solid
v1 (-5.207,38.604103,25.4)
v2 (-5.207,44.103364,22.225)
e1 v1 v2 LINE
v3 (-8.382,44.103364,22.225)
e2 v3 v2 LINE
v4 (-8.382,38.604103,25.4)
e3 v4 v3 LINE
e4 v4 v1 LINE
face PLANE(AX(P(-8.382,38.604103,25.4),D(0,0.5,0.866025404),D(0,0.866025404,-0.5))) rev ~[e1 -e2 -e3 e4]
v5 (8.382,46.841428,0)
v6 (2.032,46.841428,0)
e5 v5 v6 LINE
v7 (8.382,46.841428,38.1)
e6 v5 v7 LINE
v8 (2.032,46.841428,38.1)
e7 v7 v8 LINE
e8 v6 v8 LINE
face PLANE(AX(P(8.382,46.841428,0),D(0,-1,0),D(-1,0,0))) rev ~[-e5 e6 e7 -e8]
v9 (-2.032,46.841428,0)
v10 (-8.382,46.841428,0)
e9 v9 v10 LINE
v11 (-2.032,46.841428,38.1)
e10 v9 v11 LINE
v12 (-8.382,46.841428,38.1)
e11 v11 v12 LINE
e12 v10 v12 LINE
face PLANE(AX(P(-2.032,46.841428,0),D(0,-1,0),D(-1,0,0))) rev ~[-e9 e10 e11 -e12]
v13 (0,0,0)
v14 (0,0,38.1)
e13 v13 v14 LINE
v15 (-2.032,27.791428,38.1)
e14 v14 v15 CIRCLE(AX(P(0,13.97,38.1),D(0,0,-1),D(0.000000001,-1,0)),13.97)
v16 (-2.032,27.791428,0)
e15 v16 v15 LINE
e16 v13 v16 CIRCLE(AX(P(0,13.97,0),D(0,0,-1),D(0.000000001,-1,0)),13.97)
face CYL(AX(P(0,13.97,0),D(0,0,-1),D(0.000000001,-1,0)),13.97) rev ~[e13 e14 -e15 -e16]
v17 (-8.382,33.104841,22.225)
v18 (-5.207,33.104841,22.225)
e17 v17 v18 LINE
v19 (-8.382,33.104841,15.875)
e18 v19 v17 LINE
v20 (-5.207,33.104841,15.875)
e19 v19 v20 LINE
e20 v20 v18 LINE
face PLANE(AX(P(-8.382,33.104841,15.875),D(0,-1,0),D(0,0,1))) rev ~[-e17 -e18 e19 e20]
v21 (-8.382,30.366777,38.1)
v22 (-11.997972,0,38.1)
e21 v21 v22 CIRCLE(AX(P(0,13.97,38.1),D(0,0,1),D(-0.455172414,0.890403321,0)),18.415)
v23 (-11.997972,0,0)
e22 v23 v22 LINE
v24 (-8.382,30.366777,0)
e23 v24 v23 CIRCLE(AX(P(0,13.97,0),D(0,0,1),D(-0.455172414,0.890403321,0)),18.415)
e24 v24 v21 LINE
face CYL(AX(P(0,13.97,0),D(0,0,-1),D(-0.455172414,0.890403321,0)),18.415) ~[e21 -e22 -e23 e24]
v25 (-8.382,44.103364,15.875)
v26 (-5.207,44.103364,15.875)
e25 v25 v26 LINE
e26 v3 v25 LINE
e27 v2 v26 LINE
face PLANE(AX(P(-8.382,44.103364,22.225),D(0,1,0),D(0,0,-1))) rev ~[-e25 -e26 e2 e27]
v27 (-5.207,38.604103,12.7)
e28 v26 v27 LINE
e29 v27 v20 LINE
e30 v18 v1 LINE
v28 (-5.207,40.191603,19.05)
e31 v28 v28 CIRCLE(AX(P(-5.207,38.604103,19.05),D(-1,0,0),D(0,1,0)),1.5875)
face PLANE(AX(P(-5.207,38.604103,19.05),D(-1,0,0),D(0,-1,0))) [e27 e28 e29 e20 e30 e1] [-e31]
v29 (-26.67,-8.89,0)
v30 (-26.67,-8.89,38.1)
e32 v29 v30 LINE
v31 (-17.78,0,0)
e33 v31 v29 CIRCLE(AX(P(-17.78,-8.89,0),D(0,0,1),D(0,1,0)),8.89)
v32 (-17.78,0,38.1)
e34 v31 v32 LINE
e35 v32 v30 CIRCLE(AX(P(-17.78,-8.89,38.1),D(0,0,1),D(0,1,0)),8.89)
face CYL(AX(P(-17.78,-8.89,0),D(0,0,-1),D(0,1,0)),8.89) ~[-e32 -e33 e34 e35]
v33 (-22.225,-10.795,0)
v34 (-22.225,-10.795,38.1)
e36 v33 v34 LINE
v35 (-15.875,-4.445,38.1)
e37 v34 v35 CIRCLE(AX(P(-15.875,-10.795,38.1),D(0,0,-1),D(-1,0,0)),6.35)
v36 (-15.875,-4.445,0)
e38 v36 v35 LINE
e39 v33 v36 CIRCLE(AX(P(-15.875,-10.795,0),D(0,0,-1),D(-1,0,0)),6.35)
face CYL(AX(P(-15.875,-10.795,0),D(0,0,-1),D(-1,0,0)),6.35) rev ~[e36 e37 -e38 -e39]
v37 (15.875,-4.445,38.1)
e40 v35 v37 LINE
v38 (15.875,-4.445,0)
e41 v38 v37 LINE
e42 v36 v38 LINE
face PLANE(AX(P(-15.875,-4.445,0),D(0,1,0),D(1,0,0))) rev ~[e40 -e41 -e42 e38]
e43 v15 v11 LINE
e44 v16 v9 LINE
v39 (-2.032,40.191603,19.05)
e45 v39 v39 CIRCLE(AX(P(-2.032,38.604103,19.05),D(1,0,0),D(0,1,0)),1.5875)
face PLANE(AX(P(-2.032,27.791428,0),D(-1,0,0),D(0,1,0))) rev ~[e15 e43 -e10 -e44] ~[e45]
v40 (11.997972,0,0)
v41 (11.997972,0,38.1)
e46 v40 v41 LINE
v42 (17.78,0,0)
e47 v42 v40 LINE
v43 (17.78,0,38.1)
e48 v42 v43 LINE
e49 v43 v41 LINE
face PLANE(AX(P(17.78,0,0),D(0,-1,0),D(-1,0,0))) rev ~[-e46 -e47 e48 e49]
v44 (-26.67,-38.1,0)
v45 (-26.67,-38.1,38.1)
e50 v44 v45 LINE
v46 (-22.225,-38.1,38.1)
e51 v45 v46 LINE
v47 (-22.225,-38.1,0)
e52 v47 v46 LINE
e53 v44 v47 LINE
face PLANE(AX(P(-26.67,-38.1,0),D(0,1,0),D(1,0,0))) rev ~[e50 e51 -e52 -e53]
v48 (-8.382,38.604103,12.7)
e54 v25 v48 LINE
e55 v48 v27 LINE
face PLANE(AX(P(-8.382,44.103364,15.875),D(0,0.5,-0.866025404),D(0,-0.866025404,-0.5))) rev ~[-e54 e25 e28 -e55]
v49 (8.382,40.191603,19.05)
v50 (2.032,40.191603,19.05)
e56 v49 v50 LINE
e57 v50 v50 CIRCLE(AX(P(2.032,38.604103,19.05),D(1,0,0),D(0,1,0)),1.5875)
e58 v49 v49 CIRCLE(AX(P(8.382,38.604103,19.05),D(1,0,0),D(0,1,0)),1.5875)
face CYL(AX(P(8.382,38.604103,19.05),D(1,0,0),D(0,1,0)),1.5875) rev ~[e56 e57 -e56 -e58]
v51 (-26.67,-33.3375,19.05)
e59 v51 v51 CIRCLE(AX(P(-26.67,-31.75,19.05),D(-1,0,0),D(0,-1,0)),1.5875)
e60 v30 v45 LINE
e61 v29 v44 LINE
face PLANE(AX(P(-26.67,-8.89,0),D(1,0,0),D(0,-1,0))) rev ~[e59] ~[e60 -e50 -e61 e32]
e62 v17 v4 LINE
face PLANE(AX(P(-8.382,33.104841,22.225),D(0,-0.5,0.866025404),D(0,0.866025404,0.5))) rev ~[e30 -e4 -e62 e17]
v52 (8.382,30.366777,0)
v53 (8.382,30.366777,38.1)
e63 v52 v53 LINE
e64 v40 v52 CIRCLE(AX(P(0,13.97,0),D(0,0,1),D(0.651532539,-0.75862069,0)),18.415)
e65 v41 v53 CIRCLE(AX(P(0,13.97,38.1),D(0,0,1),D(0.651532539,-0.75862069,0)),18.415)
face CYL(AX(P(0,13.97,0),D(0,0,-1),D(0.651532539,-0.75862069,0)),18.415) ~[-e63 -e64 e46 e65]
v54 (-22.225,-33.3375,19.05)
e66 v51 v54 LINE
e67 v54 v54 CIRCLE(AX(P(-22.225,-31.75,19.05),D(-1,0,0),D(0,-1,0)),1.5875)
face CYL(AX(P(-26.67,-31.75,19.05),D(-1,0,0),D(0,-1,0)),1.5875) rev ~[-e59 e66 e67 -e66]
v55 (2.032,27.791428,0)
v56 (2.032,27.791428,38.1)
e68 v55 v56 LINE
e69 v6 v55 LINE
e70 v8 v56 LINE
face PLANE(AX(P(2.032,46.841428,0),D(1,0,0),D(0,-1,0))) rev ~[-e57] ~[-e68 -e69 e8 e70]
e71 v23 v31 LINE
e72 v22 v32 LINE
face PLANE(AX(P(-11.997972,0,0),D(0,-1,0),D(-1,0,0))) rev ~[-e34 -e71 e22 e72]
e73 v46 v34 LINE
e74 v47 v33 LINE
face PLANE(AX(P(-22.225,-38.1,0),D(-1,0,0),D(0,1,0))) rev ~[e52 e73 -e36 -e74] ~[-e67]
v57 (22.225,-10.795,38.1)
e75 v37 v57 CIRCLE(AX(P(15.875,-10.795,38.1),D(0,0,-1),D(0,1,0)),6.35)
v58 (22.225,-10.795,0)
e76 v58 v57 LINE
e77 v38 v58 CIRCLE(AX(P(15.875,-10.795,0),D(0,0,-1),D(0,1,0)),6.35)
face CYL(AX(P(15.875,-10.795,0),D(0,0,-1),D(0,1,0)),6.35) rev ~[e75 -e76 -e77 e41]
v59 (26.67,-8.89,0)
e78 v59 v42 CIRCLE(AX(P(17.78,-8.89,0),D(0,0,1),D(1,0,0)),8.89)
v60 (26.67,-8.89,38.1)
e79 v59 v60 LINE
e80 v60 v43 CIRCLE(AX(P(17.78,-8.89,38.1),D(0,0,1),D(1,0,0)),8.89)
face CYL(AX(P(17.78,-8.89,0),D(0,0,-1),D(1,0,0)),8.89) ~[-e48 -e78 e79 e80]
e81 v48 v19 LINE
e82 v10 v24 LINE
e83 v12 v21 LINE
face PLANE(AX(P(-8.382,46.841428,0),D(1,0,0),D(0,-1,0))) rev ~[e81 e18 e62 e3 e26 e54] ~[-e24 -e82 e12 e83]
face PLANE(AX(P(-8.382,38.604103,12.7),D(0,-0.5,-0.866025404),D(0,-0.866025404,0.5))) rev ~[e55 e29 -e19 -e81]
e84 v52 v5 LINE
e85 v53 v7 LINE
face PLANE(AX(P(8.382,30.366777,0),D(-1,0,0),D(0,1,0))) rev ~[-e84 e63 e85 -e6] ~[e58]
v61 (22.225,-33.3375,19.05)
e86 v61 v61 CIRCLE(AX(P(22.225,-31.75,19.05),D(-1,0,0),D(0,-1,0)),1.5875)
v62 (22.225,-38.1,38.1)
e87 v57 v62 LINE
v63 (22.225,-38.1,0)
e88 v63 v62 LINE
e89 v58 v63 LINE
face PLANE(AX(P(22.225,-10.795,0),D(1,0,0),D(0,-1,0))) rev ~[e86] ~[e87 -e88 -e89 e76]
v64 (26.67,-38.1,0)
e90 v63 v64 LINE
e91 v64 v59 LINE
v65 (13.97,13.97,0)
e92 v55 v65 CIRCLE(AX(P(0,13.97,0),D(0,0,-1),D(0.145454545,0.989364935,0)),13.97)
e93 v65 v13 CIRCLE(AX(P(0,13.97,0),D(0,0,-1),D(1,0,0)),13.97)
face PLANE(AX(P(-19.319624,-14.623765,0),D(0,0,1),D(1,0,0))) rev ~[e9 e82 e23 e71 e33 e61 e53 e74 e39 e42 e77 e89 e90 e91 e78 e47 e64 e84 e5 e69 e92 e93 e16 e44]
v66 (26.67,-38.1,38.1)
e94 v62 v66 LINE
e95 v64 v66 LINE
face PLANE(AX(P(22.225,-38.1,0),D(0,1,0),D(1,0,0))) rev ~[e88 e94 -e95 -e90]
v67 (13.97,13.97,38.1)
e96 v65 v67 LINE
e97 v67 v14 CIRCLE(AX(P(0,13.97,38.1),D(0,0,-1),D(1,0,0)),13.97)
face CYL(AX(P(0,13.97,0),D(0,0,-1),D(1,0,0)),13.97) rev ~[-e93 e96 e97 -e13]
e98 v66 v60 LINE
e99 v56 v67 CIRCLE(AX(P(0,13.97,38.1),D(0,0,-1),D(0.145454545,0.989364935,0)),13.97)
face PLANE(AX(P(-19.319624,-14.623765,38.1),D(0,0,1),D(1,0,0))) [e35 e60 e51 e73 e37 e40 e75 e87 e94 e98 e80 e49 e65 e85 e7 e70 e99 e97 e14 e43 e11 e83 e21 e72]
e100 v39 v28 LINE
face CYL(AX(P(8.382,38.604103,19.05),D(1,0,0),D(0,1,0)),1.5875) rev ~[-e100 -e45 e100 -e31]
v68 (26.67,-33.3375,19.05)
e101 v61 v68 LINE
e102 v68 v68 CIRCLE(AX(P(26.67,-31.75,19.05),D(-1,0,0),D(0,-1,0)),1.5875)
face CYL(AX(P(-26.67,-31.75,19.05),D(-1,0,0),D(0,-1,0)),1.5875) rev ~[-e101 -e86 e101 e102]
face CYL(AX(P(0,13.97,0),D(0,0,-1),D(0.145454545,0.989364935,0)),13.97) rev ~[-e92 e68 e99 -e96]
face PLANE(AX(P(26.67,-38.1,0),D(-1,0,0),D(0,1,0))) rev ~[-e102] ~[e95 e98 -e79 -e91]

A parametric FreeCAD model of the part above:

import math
import FreeCAD as App
import Part
import Sketcher

V = App.Vector
Q = App.Units.Quantity


def add_polygon(sketch, points):
    """Adds a closed chain of lines whose ends are joined by coincident constraints."""
    first, n = sketch.GeometryCount, len(points)
    for a, b in zip(points, points[1:] + points[:1]):
        sketch.addGeometry(Part.LineSegment(App.Vector(*a, 0), App.Vector(*b, 0)), False)
    for i in range(n):
        sketch.addConstraint(Sketcher.Constraint("Coincident", first + i, 2, first + (i + 1) % n, 1))

doc = App.newDocument("Part")
body = doc.addObject("PartDesign::Body", "Body")

sketch1 = body.newObject("Sketcher::SketchObject", "Sketch")
sketch1.AttachmentSupport = (doc.getObject("XY_Plane"), [""])
sketch1.MapMode = "FlatFace"
sketch1.addGeometry(Part.ArcOfCircle(Part.Circle(V(-17.8, -8.9, 0), V(0, 0, 1), 8.9), math.radians(90), math.radians(180)), False)
sketch1.addGeometry(Part.LineSegment(V(-26.7, -8.9, 0), V(-26.7, -38.1, 0)), False)
sketch1.addGeometry(Part.LineSegment(V(-26.7, -38.1, 0), V(-22.2, -38.1, 0)), False)
sketch1.addGeometry(Part.LineSegment(V(-22.2, -38.1, 0), V(-22.2, -10.8, 0)), False)
sketch1.addGeometry(Part.ArcOfCircle(Part.Circle(V(-15.9, -10.8, 0), V(0, 0, 1), 6.3), math.radians(90), math.radians(180)), False)
sketch1.addGeometry(Part.LineSegment(V(-15.9, -4.4, 0), V(15.9, -4.4, 0)), False)
sketch1.addGeometry(Part.ArcOfCircle(Part.Circle(V(15.9, -10.8, 0), V(0, 0, 1), 6.3), math.radians(0), math.radians(90)), False)
sketch1.addGeometry(Part.LineSegment(V(22.2, -10.8, 0), V(22.2, -38.1, 0)), False)
sketch1.addGeometry(Part.LineSegment(V(22.2, -38.1, 0), V(26.7, -38.1, 0)), False)
sketch1.addGeometry(Part.LineSegment(V(26.7, -38.1, 0), V(26.7, -8.9, 0)), False)
sketch1.addGeometry(Part.ArcOfCircle(Part.Circle(V(17.8, -8.9, 0), V(0, 0, 1), 8.9), math.radians(0), math.radians(90)), False)
sketch1.addGeometry(Part.LineSegment(V(17.8, 0, 0), V(12, 0, 0)), False)
sketch1.addGeometry(Part.ArcOfCircle(Part.Circle(V(0, 14, 0), V(0, 0, 1), 18.4), math.radians(-49), math.radians(63)), False)
sketch1.addGeometry(Part.LineSegment(V(8.4, 30.4, 0), V(8.4, 46.8, 0)), False)
sketch1.addGeometry(Part.LineSegment(V(8.4, 46.8, 0), V(2, 46.8, 0)), False)
sketch1.addGeometry(Part.LineSegment(V(2, 46.8, 0), V(2, 27.8, 0)), False)
sketch1.addGeometry(Part.ArcOfCircle(Part.Circle(V(0, 14, 0), V(0, 0, 1), 14), math.radians(0), math.radians(82)), False)
sketch1.addGeometry(Part.ArcOfCircle(Part.Circle(V(0, 14, 0), V(0, 0, 1), 14), math.radians(-90), math.radians(0)), False)
sketch1.addGeometry(Part.ArcOfCircle(Part.Circle(V(0, 14, 0), V(0, 0, 1), 14), math.radians(98), math.radians(270)), False)
sketch1.addGeometry(Part.LineSegment(V(-2, 27.8, 0), V(-2, 46.8, 0)), False)
sketch1.addGeometry(Part.LineSegment(V(-2, 46.8, 0), V(-8.4, 46.8, 0)), False)
sketch1.addGeometry(Part.LineSegment(V(-8.4, 46.8, 0), V(-8.4, 30.4, 0)), False)
sketch1.addGeometry(Part.ArcOfCircle(Part.Circle(V(0, 14, 0), V(0, 0, 1), 18.4), math.radians(117), math.radians(229)), False)
sketch1.addGeometry(Part.LineSegment(V(-12, 0, 0), V(-17.8, 0, 0)), False)
sketch1.addConstraint(Sketcher.Constraint("Tangent", 0, 2, 1, 1))
sketch1.addConstraint(Sketcher.Constraint("Coincident", 1, 2, 2, 1))
sketch1.addConstraint(Sketcher.Constraint("Coincident", 2, 2, 3, 1))
sketch1.addConstraint(Sketcher.Constraint("Tangent", 3, 2, 4, 2))
sketch1.addConstraint(Sketcher.Constraint("Tangent", 4, 1, 5, 1))
sketch1.addConstraint(Sketcher.Constraint("Tangent", 5, 2, 6, 2))
sketch1.addConstraint(Sketcher.Constraint("Tangent", 6, 1, 7, 1))
sketch1.addConstraint(Sketcher.Constraint("Coincident", 7, 2, 8, 1))
sketch1.addConstraint(Sketcher.Constraint("Coincident", 8, 2, 9, 1))
sketch1.addConstraint(Sketcher.Constraint("Tangent", 9, 2, 10, 1))
sketch1.addConstraint(Sketcher.Constraint("Tangent", 10, 2, 11, 1))
sketch1.addConstraint(Sketcher.Constraint("Coincident", 11, 2, 12, 1))
sketch1.addConstraint(Sketcher.Constraint("Coincident", 12, 2, 13, 1))
sketch1.addConstraint(Sketcher.Constraint("Coincident", 13, 2, 14, 1))
sketch1.addConstraint(Sketcher.Constraint("Coincident", 14, 2, 15, 1))
sketch1.addConstraint(Sketcher.Constraint("Coincident", 15, 2, 16, 2))
sketch1.addConstraint(Sketcher.Constraint("Tangent", 16, 1, 17, 2))
sketch1.addConstraint(Sketcher.Constraint("Tangent", 17, 1, 18, 2))
sketch1.addConstraint(Sketcher.Constraint("Coincident", 18, 1, 19, 1))
sketch1.addConstraint(Sketcher.Constraint("Coincident", 19, 2, 20, 1))
sketch1.addConstraint(Sketcher.Constraint("Coincident", 20, 2, 21, 1))
sketch1.addConstraint(Sketcher.Constraint("Coincident", 21, 2, 22, 1))
sketch1.addConstraint(Sketcher.Constraint("Coincident", 22, 2, 23, 1))
sketch1.addConstraint(Sketcher.Constraint("Tangent", 23, 2, 0, 1))
sketch1.addConstraint(Sketcher.Constraint("Vertical", 1))
sketch1.addConstraint(Sketcher.Constraint("Horizontal", 2))
sketch1.addConstraint(Sketcher.Constraint("Vertical", 3))
sketch1.addConstraint(Sketcher.Constraint("Horizontal", 5))
sketch1.addConstraint(Sketcher.Constraint("Vertical", 7))
sketch1.addConstraint(Sketcher.Constraint("Horizontal", 8))
sketch1.addConstraint(Sketcher.Constraint("Vertical", 9))
sketch1.addConstraint(Sketcher.Constraint("Horizontal", 11))
sketch1.addConstraint(Sketcher.Constraint("Vertical", 13))
sketch1.addConstraint(Sketcher.Constraint("Horizontal", 14))
sketch1.addConstraint(Sketcher.Constraint("Vertical", 15))
sketch1.addConstraint(Sketcher.Constraint("Vertical", 19))
sketch1.addConstraint(Sketcher.Constraint("Horizontal", 20))
sketch1.addConstraint(Sketcher.Constraint("Vertical", 21))
sketch1.addConstraint(Sketcher.Constraint("Horizontal", 23))
sketch1.addConstraint(Sketcher.Constraint("Coincident", 17, 1, -1, 1))
sketch1.addConstraint(Sketcher.Constraint("Coincident", 16, 3, 12, 3))
sketch1.addConstraint(Sketcher.Constraint("Coincident", 18, 3, 12, 3))
sketch1.addConstraint(Sketcher.Constraint("Coincident", 22, 3, 12, 3))
sketch1.addConstraint(Sketcher.Constraint("Equal", 4, 6))
sketch1.addConstraint(Sketcher.Constraint("Equal", 0, 10))
sketch1.addConstraint(Sketcher.Constraint("Equal", 12, 22))
sketch1.addConstraint(Sketcher.Constraint("Symmetric", 11, 2, 22, 2, -1, 1))
sketch1.addConstraint(Sketcher.Constraint("Symmetric", 0, 3, 10, 3, -2))
sketch1.addConstraint(Sketcher.Constraint("Symmetric", 2, 2, 7, 2, -2))
sketch1.addConstraint(Sketcher.Constraint("Symmetric", 14, 2, 19, 2, -2))
sketch1.addConstraint(Sketcher.Constraint("Horizontal", 22, 3, 16, 1))
sketch1.addConstraint(Sketcher.Constraint("Horizontal", 12, 2, 21, 2))
sketch1.addConstraint(Sketcher.Constraint("Radius", 0, Q("0.35 in")))
sketch1.addConstraint(Sketcher.Constraint("Radius", 4, Q("0.25 in")))
sketch1.addConstraint(Sketcher.Constraint("Radius", 16, Q("0.55 in")))
sketch1.addConstraint(Sketcher.Constraint("Radius", 12, Q("0.725 in")))
sketch1.addConstraint(Sketcher.Constraint("DistanceX", 5, 1, 5, 2, Q("1.25 in")))
sketch1.addConstraint(Sketcher.Constraint("DistanceX", 14, 2, 14, 1, Q("0.25 in")))
sketch1.addConstraint(Sketcher.Constraint("DistanceY", 1, 2, 1, 1, Q("1.15 in")))
sketch1.addConstraint(Sketcher.Constraint("DistanceY", 15, 2, 15, 1, Q("0.75 in")))
sketch1.addConstraint(Sketcher.Constraint("DistanceX", 0, 3, -1, 1, Q("0.7 in")))
sketch1.addConstraint(Sketcher.Constraint("DistanceY", 3, 1, 3, 2, Q("1.075 in")))
sketch1.addConstraint(Sketcher.Constraint("DistanceX", -1, 1, 12, 2, Q("0.33 in")))
pad1 = body.newObject("PartDesign::Pad", "Pad")
pad1.Profile = sketch1
pad1.Length = Q("1.5 in")

sketch2 = body.newObject("Sketcher::SketchObject", "Sketch001")
sketch2.AttachmentSupport = (doc.getObject("YZ_Plane"), [""])
sketch2.MapMode = "FlatFace"
sketch2.AttachmentOffset = App.Placement(V(0, 0, 0.33 * 25.4), App.Rotation())
sketch2.addGeometry(Part.Circle(V(38.6, 19.1, 0), V(0, 0, 1), 1.6), False)
sketch2.addConstraint(Sketcher.Constraint("Diameter", 0, Q("0.125 in")))
sketch2.addConstraint(Sketcher.Constraint("DistanceY", -1, 1, 0, 3, Q("0.75 in")))
sketch2.addConstraint(Sketcher.Constraint("DistanceX", -1, 1, 0, 3, 38.604103))
pocket1 = body.newObject("PartDesign::Pocket", "Pocket")
pocket1.Profile = sketch2
pocket1.Type = "ThroughAll"

sketch3 = body.newObject("Sketcher::SketchObject", "Sketch002")
sketch3.AttachmentSupport = (doc.getObject("YZ_Plane"), [""])
sketch3.MapMode = "FlatFace"
sketch3.AttachmentOffset = App.Placement(V(0, 0, -0.33 * 25.4), App.Rotation())
add_polygon(sketch3, [(44.1, 22.2), (44.1, 15.9), (38.6, 12.7), (33.1, 15.9), (33.1, 22.2), (38.6, 25.4)])
sketch3.addGeometry(Part.Circle(V(38.6, 19.1, 0), V(0, 0, 1), 1.6), False)
sketch3.addConstraint(Sketcher.Constraint("Vertical", 0))
sketch3.addConstraint(Sketcher.Constraint("Vertical", 3))
sketch3.addConstraint(Sketcher.Constraint("Parallel", 1, 4))
sketch3.addConstraint(Sketcher.Constraint("Parallel", 2, 5))
sketch3.addConstraint(Sketcher.Constraint("Horizontal", 0, 2, 2, 2))
sketch3.addConstraint(Sketcher.Constraint("Horizontal", 3, 2, 5, 2))
sketch3.addConstraint(Sketcher.Constraint("Vertical", 6, 3, 1, 2))
sketch3.addConstraint(Sketcher.Constraint("Vertical", 1, 2, 4, 2))
sketch3.addConstraint(Sketcher.Constraint("Diameter", 6, Q("0.125 in")))
sketch3.addConstraint(Sketcher.Constraint("DistanceY", -1, 1, 4, 2, Q("1 in")))
sketch3.addConstraint(Sketcher.Constraint("Angle", 1, Q("-150 deg")))
sketch3.addConstraint(Sketcher.Constraint("DistanceY", 0, 2, 0, 1, Q("0.25 in")))
sketch3.addConstraint(Sketcher.Constraint("DistanceY", -1, 1, 1, 2, Q("0.5 in")))
sketch3.addConstraint(Sketcher.Constraint("DistanceY", -1, 1, 6, 3, Q("0.75 in")))
sketch3.addConstraint(Sketcher.Constraint("DistanceX", -1, 1, 2, 2, 33.104841))
pocket2 = body.newObject("PartDesign::Pocket", "Pocket001")
pocket2.Profile = sketch3
pocket2.Length = Q("0.125 in")
pocket2.Reversed = True

sketch4 = body.newObject("Sketcher::SketchObject", "Sketch003")
sketch4.AttachmentSupport = (doc.getObject("YZ_Plane"), [""])
sketch4.MapMode = "FlatFace"
sketch4.AttachmentOffset = App.Placement(V(0, 0, -1.05 * 25.4), App.Rotation())
sketch4.addGeometry(Part.Circle(V(-31.8, 19.1, 0), V(0, 0, 1), 1.6), False)
sketch4.addConstraint(Sketcher.Constraint("Diameter", 0, Q("0.125 in")))
sketch4.addConstraint(Sketcher.Constraint("DistanceX", 0, 3, -1, 1, Q("1.25 in")))
sketch4.addConstraint(Sketcher.Constraint("DistanceY", -1, 1, 0, 3, Q("0.75 in")))
pocket3 = body.newObject("PartDesign::Pocket", "Pocket002")
pocket3.Profile = sketch4
pocket3.Type = "ThroughAll"
pocket3.Reversed = True

doc.recompute()
